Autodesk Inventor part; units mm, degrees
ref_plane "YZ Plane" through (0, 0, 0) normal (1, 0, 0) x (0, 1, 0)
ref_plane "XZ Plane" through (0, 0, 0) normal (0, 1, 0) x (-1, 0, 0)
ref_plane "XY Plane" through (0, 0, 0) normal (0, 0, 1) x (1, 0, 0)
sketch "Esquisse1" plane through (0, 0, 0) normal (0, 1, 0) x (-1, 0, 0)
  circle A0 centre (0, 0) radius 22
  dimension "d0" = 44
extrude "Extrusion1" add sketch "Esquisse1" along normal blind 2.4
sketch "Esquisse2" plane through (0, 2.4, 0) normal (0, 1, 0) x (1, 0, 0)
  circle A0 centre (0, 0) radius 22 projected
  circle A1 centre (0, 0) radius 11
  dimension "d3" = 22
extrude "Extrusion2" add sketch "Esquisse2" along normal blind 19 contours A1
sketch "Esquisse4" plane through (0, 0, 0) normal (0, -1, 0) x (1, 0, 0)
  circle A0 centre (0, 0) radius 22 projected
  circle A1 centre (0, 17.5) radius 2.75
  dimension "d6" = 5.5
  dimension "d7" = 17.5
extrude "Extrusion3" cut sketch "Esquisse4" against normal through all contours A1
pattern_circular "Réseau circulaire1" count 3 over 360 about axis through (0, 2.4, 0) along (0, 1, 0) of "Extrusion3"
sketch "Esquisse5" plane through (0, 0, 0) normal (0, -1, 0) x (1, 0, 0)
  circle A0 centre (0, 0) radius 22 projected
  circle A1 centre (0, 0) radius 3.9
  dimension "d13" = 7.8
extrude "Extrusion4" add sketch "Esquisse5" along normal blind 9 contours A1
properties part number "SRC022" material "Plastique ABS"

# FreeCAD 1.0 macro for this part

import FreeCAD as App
import Part
import Sketcher

V = App.Vector

doc = App.newDocument("Part")
body = doc.addObject("PartDesign::Body", "Body")

# Sketch on XZ plane
sketch1 = body.newObject("Sketcher::SketchObject", "Sketch")
sketch1.AttachmentSupport = (doc.getObject("XZ_Plane"), [""])
sketch1.MapMode = "FlatFace"
sketch1.addGeometry(Part.Circle(V(0, 0, 0), V(0, 0, 1), 22), False)
sketch1.addConstraint([
    Sketcher.Constraint("Coincident", 0, 3, -1, 1),
    Sketcher.Constraint("Diameter", 0, 44.0),
])
pad1 = body.newObject("PartDesign::Pad", "Pad")
pad1.Profile = sketch1
pad1.Length = 2.4
pad1.Reversed = True

# Sketch on XZ plane
sketch2 = body.newObject("Sketcher::SketchObject", "Sketch001")
sketch2.AttachmentSupport = (doc.getObject("XZ_Plane"), [""])
sketch2.MapMode = "FlatFace"
sketch2.AttachmentOffset = App.Placement(V(0, 0, -2.4), App.Rotation())
sketch2.addGeometry(Part.Circle(V(0, 0, 0), V(0, 0, 1), 11), False)
sketch2.addConstraint([
    Sketcher.Constraint("Coincident", 0, 3, -1, 1),
    Sketcher.Constraint("Diameter", 0, 22.0),
])
pad2 = body.newObject("PartDesign::Pad", "Pad001")
pad2.Profile = sketch2
pad2.Length = 19
pad2.Reversed = True

# Sketch on XZ plane
sketch3 = body.newObject("Sketcher::SketchObject", "Sketch002")
sketch3.AttachmentSupport = (doc.getObject("XZ_Plane"), [""])
sketch3.MapMode = "FlatFace"
sketch3.addGeometry(Part.Circle(V(0, 17.5, 0), V(0, 0, 1), 2.75), False)
sketch3.addConstraint([
    Sketcher.Constraint("PointOnObject", 0, 3, -2),
    Sketcher.Constraint("Diameter", 0, 5.5),
    Sketcher.Constraint("DistanceY", -1, 1, 0, 3, 17.5),
])
pocket1 = body.newObject("PartDesign::Pocket", "Pocket")
pocket1.Profile = sketch3
pocket1.Type = "ThroughAll"
doc.recompute()

polarpattern = body.newObject("PartDesign::PolarPattern", "PolarPattern")
polarpattern.Originals = [pocket1]
polarpattern.Axis = (doc.getObject("Y_Axis"), [""])
polarpattern.Angle = 360
polarpattern.Occurrences = 3
body.Tip = polarpattern

# Sketch on XZ plane
sketch4 = body.newObject("Sketcher::SketchObject", "Sketch003")
sketch4.AttachmentSupport = (doc.getObject("XZ_Plane"), [""])
sketch4.MapMode = "FlatFace"
sketch4.addGeometry(Part.Circle(V(0, 0, 0), V(0, 0, 1), 3.9), False)
sketch4.addConstraint([
    Sketcher.Constraint("Coincident", 0, 3, -1, 1),
    Sketcher.Constraint("Diameter", 0, 7.8),
])
pad3 = body.newObject("PartDesign::Pad", "Pad002")
pad3.Profile = sketch4
pad3.Length = 9

doc.recompute()
